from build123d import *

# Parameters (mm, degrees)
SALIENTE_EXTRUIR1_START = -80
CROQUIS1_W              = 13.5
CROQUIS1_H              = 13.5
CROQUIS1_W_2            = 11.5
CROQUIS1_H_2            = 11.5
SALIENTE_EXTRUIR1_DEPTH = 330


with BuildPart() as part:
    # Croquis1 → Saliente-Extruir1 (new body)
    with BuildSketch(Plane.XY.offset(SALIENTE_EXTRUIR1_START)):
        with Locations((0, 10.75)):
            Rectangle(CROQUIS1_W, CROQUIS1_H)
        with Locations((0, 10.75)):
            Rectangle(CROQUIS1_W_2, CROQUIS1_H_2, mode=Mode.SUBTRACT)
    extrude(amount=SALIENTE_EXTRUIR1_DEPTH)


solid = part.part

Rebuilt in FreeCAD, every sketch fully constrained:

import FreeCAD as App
import Part
import Sketcher
Q = App.Units.Quantity

doc = App.newDocument("Part")
body = doc.addObject("PartDesign::Body", "Body")

# Sketch on XY plane
sketch1 = body.newObject("Sketcher::SketchObject", "Sketch")
sketch1.AttachmentSupport = (doc.getObject("XY_Plane"), [""])
sketch1.MapMode = "FlatFace"
sketch1.AttachmentOffset = App.Placement(App.Vector(0, 0, -80), App.Rotation())
sketch1.addGeometry(Part.LineSegment(App.Vector(-6.75, 17.5, 0), App.Vector(-6.75, 4, 0)), False)
sketch1.addGeometry(Part.LineSegment(App.Vector(-6.75, 4, 0), App.Vector(6.75, 4, 0)), False)
sketch1.addGeometry(Part.LineSegment(App.Vector(6.75, 4, 0), App.Vector(6.75, 17.5, 0)), False)
sketch1.addGeometry(Part.LineSegment(App.Vector(6.75, 17.5, 0), App.Vector(-6.75, 17.5, 0)), False)
sketch1.addGeometry(Part.LineSegment(App.Vector(5.75, 5, 0), App.Vector(-5.75, 5, 0)), False)
sketch1.addGeometry(Part.LineSegment(App.Vector(-5.75, 5, 0), App.Vector(-5.75, 16.5, 0)), False)
sketch1.addGeometry(Part.LineSegment(App.Vector(-5.75, 16.5, 0), App.Vector(5.75, 16.5, 0)), False)
sketch1.addGeometry(Part.LineSegment(App.Vector(5.75, 16.5, 0), App.Vector(5.75, 5, 0)), False)
sketch1.addConstraint(Sketcher.Constraint("Coincident", 0, 2, 1, 1))
sketch1.addConstraint(Sketcher.Constraint("Coincident", 1, 2, 2, 1))
sketch1.addConstraint(Sketcher.Constraint("Coincident", 2, 2, 3, 1))
sketch1.addConstraint(Sketcher.Constraint("Coincident", 3, 2, 0, 1))
sketch1.addConstraint(Sketcher.Constraint("Coincident", 4, 2, 5, 1))
sketch1.addConstraint(Sketcher.Constraint("Coincident", 5, 2, 6, 1))
sketch1.addConstraint(Sketcher.Constraint("Coincident", 6, 2, 7, 1))
sketch1.addConstraint(Sketcher.Constraint("Coincident", 7, 2, 4, 1))
sketch1.addConstraint(Sketcher.Constraint("Vertical", 0))
sketch1.addConstraint(Sketcher.Constraint("Horizontal", 1))
sketch1.addConstraint(Sketcher.Constraint("Vertical", 2))
sketch1.addConstraint(Sketcher.Constraint("Horizontal", 3))
sketch1.addConstraint(Sketcher.Constraint("Horizontal", 4))
sketch1.addConstraint(Sketcher.Constraint("Vertical", 5))
sketch1.addConstraint(Sketcher.Constraint("Horizontal", 6))
sketch1.addConstraint(Sketcher.Constraint("Vertical", 7))
sketch1.addConstraint(Sketcher.Constraint("Equal", 3, 0))
sketch1.addConstraint(Sketcher.Constraint("Equal", 6, 5))
sketch1.addConstraint(Sketcher.Constraint("DistanceX", 1, 1, 1, 2, Q("13.5 mm")))
sketch1.addConstraint(Sketcher.Constraint("DistanceX", 4, 2, 4, 1, Q("11.5 mm")))
sketch1.addConstraint(Sketcher.Constraint("DistanceY", -1, 1, 0, 2, Q("4 mm")))
sketch1.addConstraint(Sketcher.Constraint("DistanceY", -1, 1, 4, 2, Q("5 mm")))
sketch1.addConstraint(Sketcher.Constraint("DistanceX", 0, 2, 4, 2, Q("1 mm")))
sketch1.addConstraint(Sketcher.Constraint("DistanceX", 0, 2, -1, 1, Q("6.75 mm")))
pad1 = body.newObject("PartDesign::Pad", "Pad")
pad1.Profile = sketch1
pad1.Length = 330

doc.recompute()
